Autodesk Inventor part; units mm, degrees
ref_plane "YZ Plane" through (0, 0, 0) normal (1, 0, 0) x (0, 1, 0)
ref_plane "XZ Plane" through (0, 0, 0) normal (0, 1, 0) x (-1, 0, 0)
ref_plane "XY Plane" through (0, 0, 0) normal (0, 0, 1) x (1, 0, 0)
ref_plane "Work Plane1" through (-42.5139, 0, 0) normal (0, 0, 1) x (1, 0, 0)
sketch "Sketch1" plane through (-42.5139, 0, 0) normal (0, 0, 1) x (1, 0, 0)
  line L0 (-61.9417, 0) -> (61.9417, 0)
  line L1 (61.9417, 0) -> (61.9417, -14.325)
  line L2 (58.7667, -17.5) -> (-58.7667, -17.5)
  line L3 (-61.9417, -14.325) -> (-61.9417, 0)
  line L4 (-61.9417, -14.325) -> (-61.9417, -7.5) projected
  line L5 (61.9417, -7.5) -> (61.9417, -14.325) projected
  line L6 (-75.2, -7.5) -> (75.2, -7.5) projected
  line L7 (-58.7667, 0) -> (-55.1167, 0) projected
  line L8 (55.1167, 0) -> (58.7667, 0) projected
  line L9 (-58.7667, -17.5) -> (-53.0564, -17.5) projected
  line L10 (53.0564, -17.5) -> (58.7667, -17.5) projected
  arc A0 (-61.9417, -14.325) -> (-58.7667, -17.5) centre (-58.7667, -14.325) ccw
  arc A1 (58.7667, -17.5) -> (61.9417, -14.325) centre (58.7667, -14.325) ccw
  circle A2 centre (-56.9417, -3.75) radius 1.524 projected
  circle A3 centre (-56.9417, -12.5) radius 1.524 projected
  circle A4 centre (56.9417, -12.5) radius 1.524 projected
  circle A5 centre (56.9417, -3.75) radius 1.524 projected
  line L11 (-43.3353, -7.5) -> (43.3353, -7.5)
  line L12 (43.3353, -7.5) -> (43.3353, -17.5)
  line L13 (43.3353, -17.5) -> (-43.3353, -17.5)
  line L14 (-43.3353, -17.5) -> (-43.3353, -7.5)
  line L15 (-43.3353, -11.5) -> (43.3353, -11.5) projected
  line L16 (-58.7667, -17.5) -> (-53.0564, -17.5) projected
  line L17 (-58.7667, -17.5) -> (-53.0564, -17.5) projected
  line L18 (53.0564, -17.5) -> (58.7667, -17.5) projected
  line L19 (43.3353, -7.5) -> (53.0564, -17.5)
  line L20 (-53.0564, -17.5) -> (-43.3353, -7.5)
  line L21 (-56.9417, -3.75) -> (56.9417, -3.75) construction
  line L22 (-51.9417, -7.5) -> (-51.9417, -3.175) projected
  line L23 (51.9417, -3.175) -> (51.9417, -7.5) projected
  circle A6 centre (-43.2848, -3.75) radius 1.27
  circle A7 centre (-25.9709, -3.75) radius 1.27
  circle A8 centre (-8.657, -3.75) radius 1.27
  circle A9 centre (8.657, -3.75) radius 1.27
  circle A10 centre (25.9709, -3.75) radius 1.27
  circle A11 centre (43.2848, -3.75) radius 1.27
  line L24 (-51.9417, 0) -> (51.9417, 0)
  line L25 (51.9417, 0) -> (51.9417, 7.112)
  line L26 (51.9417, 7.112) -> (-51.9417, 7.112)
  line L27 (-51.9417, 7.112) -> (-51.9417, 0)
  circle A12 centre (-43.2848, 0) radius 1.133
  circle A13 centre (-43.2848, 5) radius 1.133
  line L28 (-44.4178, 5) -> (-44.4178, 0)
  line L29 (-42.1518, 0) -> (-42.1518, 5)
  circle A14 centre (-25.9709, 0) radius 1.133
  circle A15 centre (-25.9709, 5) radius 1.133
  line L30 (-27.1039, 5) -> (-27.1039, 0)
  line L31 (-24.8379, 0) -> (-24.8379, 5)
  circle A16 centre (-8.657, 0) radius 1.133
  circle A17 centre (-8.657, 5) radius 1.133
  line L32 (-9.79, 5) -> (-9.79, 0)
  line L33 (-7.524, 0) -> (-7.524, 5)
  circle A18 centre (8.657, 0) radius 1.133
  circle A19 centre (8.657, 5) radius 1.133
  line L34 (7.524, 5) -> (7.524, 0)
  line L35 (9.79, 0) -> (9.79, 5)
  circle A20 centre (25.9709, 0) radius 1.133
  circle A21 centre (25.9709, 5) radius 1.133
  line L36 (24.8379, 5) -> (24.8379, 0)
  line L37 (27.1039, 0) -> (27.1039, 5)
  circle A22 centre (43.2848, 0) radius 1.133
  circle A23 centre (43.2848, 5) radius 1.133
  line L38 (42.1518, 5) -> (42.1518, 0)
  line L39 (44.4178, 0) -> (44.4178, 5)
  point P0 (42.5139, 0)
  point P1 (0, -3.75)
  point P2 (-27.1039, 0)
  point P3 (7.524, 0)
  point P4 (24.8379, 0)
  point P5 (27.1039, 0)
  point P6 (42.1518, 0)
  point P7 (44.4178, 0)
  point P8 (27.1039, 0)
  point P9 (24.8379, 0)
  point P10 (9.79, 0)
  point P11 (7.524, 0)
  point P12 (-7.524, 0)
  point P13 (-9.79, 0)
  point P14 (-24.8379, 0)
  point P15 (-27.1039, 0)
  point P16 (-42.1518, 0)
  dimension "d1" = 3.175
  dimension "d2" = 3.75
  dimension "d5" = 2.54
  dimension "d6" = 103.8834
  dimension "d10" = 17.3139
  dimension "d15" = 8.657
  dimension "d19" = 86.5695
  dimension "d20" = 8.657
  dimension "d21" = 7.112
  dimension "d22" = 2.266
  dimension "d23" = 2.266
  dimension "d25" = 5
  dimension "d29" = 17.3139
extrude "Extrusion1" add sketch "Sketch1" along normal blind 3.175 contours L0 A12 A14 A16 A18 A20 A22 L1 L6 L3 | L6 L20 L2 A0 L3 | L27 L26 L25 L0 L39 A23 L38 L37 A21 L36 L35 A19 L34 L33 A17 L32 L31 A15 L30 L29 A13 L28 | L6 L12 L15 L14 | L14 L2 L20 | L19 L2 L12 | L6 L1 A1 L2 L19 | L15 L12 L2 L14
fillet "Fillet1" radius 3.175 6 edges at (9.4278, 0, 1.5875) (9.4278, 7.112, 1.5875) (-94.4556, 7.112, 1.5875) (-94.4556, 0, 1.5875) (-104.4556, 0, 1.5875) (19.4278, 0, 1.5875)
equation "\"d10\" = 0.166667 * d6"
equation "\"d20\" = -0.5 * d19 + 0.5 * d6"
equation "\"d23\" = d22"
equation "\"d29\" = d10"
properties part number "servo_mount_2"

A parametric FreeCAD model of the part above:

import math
import FreeCAD as App
import Part
import Sketcher

V = App.Vector
Q = App.Units.Quantity


def edges_at(feature, points):
    """Names of the edges that pass closest to the given points."""
    edges = feature.Shape.Edges
    near = lambda p: min(range(len(edges)), key=lambda i: edges[i].distToShape(Part.Vertex(*p))[0])
    return sorted({f"Edge{near(p) + 1}" for p in points})

doc = App.newDocument("Part")
body = doc.addObject("PartDesign::Body", "Body")

sketch1 = body.newObject("Sketcher::SketchObject", "Sketch")
sketch1.AttachmentSupport = (doc.getObject("XY_Plane"), [""])
sketch1.MapMode = "FlatFace"
sketch1.addGeometry(Part.LineSegment(V(-104.5, 0, 0), V(-104.5, -14.3, 0)), False)
sketch1.addGeometry(Part.ArcOfCircle(Part.Circle(V(-101.3, -14.3, 0), V(0, 0, 1), 3.2), math.radians(180), math.radians(270)), False)
sketch1.addGeometry(Part.LineSegment(V(-101.3, -17.5, 0), V(16.3, -17.5, 0)), False)
sketch1.addGeometry(Part.ArcOfCircle(Part.Circle(V(16.3, -14.3, 0), V(0, 0, 1), 3.2), math.radians(-90), math.radians(0)), False)
sketch1.addGeometry(Part.LineSegment(V(19.4, -14.3, 0), V(19.4, 0, 0)), False)
sketch1.addGeometry(Part.LineSegment(V(19.4, 0, 0), V(9.4, 0, 0)), False)
sketch1.addGeometry(Part.LineSegment(V(9.4, 0, 0), V(9.4, 7.1, 0)), False)
sketch1.addGeometry(Part.LineSegment(V(9.4, 7.1, 0), V(-94.5, 7.1, 0)), False)
sketch1.addGeometry(Part.LineSegment(V(-94.5, 7.1, 0), V(-94.5, 0, 0)), False)
sketch1.addGeometry(Part.LineSegment(V(-94.5, 0, 0), V(-104.5, 0, 0)), False)
sketch1.addGeometry(Part.ArcOfCircle(Part.Circle(V(-85.8, 0, 0), V(0, 0, 1), 1.1), math.radians(180), math.radians(360)), False)
sketch1.addGeometry(Part.LineSegment(V(-86.9, 0, 0), V(-86.9, 5, 0)), False)
sketch1.addGeometry(Part.ArcOfCircle(Part.Circle(V(-85.8, 5, 0), V(0, 0, 1), 1.1), math.radians(0), math.radians(180)), False)
sketch1.addGeometry(Part.LineSegment(V(-84.7, 5, 0), V(-84.7, 0, 0)), False)
sketch1.addGeometry(Part.ArcOfCircle(Part.Circle(V(-68.5, 0, 0), V(0, 0, 1), 1.1), math.radians(180), math.radians(360)), False)
sketch1.addGeometry(Part.LineSegment(V(-69.6, 0, 0), V(-69.6, 5, 0)), False)
sketch1.addGeometry(Part.ArcOfCircle(Part.Circle(V(-68.5, 5, 0), V(0, 0, 1), 1.1), math.radians(0), math.radians(180)), False)
sketch1.addGeometry(Part.LineSegment(V(-67.4, 5, 0), V(-67.4, 0, 0)), False)
sketch1.addGeometry(Part.ArcOfCircle(Part.Circle(V(-51.2, 0, 0), V(0, 0, 1), 1.1), math.radians(180), math.radians(360)), False)
sketch1.addGeometry(Part.LineSegment(V(-52.3, 0, 0), V(-52.3, 5, 0)), False)
sketch1.addGeometry(Part.ArcOfCircle(Part.Circle(V(-51.2, 5, 0), V(0, 0, 1), 1.1), math.radians(0), math.radians(180)), False)
sketch1.addGeometry(Part.LineSegment(V(-50, 5, 0), V(-50, 0, 0)), False)
sketch1.addGeometry(Part.ArcOfCircle(Part.Circle(V(-33.9, 0, 0), V(0, 0, 1), 1.1), math.radians(180), math.radians(360)), False)
sketch1.addGeometry(Part.LineSegment(V(-35, 0, 0), V(-35, 5, 0)), False)
sketch1.addGeometry(Part.ArcOfCircle(Part.Circle(V(-33.9, 5, 0), V(0, 0, 1), 1.1), math.radians(0), math.radians(180)), False)
sketch1.addGeometry(Part.LineSegment(V(-32.7, 5, 0), V(-32.7, 0, 0)), False)
sketch1.addGeometry(Part.ArcOfCircle(Part.Circle(V(-16.5, 0, 0), V(0, 0, 1), 1.1), math.radians(180), math.radians(360)), False)
sketch1.addGeometry(Part.LineSegment(V(-17.7, 0, 0), V(-17.7, 5, 0)), False)
sketch1.addGeometry(Part.ArcOfCircle(Part.Circle(V(-16.5, 5, 0), V(0, 0, 1), 1.1), math.radians(0), math.radians(180)), False)
sketch1.addGeometry(Part.LineSegment(V(-15.4, 5, 0), V(-15.4, 0, 0)), False)
sketch1.addGeometry(Part.ArcOfCircle(Part.Circle(V(0.8, 0, 0), V(0, 0, 1), 1.1), math.radians(180), math.radians(360)), False)
sketch1.addGeometry(Part.LineSegment(V(-0.4, 0, 0), V(-0.4, 5, 0)), False)
sketch1.addGeometry(Part.ArcOfCircle(Part.Circle(V(0.8, 5, 0), V(0, 0, 1), 1.1), math.radians(0), math.radians(180)), False)
sketch1.addGeometry(Part.LineSegment(V(1.9, 5, 0), V(1.9, 0, 0)), False)
sketch1.addGeometry(Part.Circle(V(-99.5, -3.8, 0), V(0, 0, 1), 1.5), False)
sketch1.addGeometry(Part.Circle(V(-85.8, -3.8, 0), V(0, 0, 1), 1.3), False)
sketch1.addGeometry(Part.Circle(V(-68.5, -3.8, 0), V(0, 0, 1), 1.3), False)
sketch1.addGeometry(Part.Circle(V(-51.2, -3.8, 0), V(0, 0, 1), 1.3), False)
sketch1.addGeometry(Part.Circle(V(-33.9, -3.8, 0), V(0, 0, 1), 1.3), False)
sketch1.addGeometry(Part.Circle(V(-16.5, -3.8, 0), V(0, 0, 1), 1.3), False)
sketch1.addGeometry(Part.Circle(V(0.8, -3.8, 0), V(0, 0, 1), 1.3), False)
sketch1.addGeometry(Part.Circle(V(14.4, -3.8, 0), V(0, 0, 1), 1.5), False)
sketch1.addGeometry(Part.Circle(V(14.4, -12.5, 0), V(0, 0, 1), 1.5), False)
sketch1.addGeometry(Part.Circle(V(-99.5, -12.5, 0), V(0, 0, 1), 1.5), False)
sketch1.addConstraint(Sketcher.Constraint("Tangent", 0, 2, 1, 1))
sketch1.addConstraint(Sketcher.Constraint("Tangent", 1, 2, 2, 1))
sketch1.addConstraint(Sketcher.Constraint("Tangent", 2, 2, 3, 1))
sketch1.addConstraint(Sketcher.Constraint("Tangent", 3, 2, 4, 1))
sketch1.addConstraint(Sketcher.Constraint("Coincident", 4, 2, 5, 1))
sketch1.addConstraint(Sketcher.Constraint("Coincident", 5, 2, 6, 1))
sketch1.addConstraint(Sketcher.Constraint("Coincident", 6, 2, 7, 1))
sketch1.addConstraint(Sketcher.Constraint("Coincident", 7, 2, 8, 1))
sketch1.addConstraint(Sketcher.Constraint("Coincident", 8, 2, 9, 1))
sketch1.addConstraint(Sketcher.Constraint("Coincident", 9, 2, 0, 1))
sketch1.addConstraint(Sketcher.Constraint("Tangent", 10, 1, 11, 1))
sketch1.addConstraint(Sketcher.Constraint("Tangent", 11, 2, 12, 2))
sketch1.addConstraint(Sketcher.Constraint("Tangent", 12, 1, 13, 1))
sketch1.addConstraint(Sketcher.Constraint("Tangent", 13, 2, 10, 2))
sketch1.addConstraint(Sketcher.Constraint("Tangent", 14, 1, 15, 1))
sketch1.addConstraint(Sketcher.Constraint("Tangent", 15, 2, 16, 2))
sketch1.addConstraint(Sketcher.Constraint("Tangent", 16, 1, 17, 1))
sketch1.addConstraint(Sketcher.Constraint("Tangent", 17, 2, 14, 2))
sketch1.addConstraint(Sketcher.Constraint("Tangent", 18, 1, 19, 1))
sketch1.addConstraint(Sketcher.Constraint("Tangent", 19, 2, 20, 2))
sketch1.addConstraint(Sketcher.Constraint("Tangent", 20, 1, 21, 1))
sketch1.addConstraint(Sketcher.Constraint("Tangent", 21, 2, 18, 2))
sketch1.addConstraint(Sketcher.Constraint("Tangent", 22, 1, 23, 1))
sketch1.addConstraint(Sketcher.Constraint("Tangent", 23, 2, 24, 2))
sketch1.addConstraint(Sketcher.Constraint("Tangent", 24, 1, 25, 1))
sketch1.addConstraint(Sketcher.Constraint("Tangent", 25, 2, 22, 2))
sketch1.addConstraint(Sketcher.Constraint("Tangent", 26, 1, 27, 1))
sketch1.addConstraint(Sketcher.Constraint("Tangent", 27, 2, 28, 2))
sketch1.addConstraint(Sketcher.Constraint("Tangent", 28, 1, 29, 1))
sketch1.addConstraint(Sketcher.Constraint("Tangent", 29, 2, 26, 2))
sketch1.addConstraint(Sketcher.Constraint("Tangent", 30, 1, 31, 1))
sketch1.addConstraint(Sketcher.Constraint("Tangent", 31, 2, 32, 2))
sketch1.addConstraint(Sketcher.Constraint("Tangent", 32, 1, 33, 1))
sketch1.addConstraint(Sketcher.Constraint("Tangent", 33, 2, 30, 2))
sketch1.addConstraint(Sketcher.Constraint("Vertical", 0))
sketch1.addConstraint(Sketcher.Constraint("Horizontal", 2))
sketch1.addConstraint(Sketcher.Constraint("Vertical", 4))
sketch1.addConstraint(Sketcher.Constraint("Horizontal", 5))
sketch1.addConstraint(Sketcher.Constraint("Vertical", 6))
sketch1.addConstraint(Sketcher.Constraint("Horizontal", 7))
sketch1.addConstraint(Sketcher.Constraint("Vertical", 8))
sketch1.addConstraint(Sketcher.Constraint("Horizontal", 9))
sketch1.addConstraint(Sketcher.Constraint("Vertical", 11))
sketch1.addConstraint(Sketcher.Constraint("Vertical", 13))
sketch1.addConstraint(Sketcher.Constraint("Vertical", 15))
sketch1.addConstraint(Sketcher.Constraint("Vertical", 17))
sketch1.addConstraint(Sketcher.Constraint("Vertical", 19))
sketch1.addConstraint(Sketcher.Constraint("Vertical", 21))
sketch1.addConstraint(Sketcher.Constraint("Vertical", 23))
sketch1.addConstraint(Sketcher.Constraint("Vertical", 25))
sketch1.addConstraint(Sketcher.Constraint("Vertical", 27))
sketch1.addConstraint(Sketcher.Constraint("Vertical", 29))
sketch1.addConstraint(Sketcher.Constraint("Vertical", 31))
sketch1.addConstraint(Sketcher.Constraint("Vertical", 33))
sketch1.addConstraint(Sketcher.Constraint("Equal", 1, 3))
sketch1.addConstraint(Sketcher.Constraint("Equal", 12, 14))
sketch1.addConstraint(Sketcher.Constraint("Equal", 16, 18))
sketch1.addConstraint(Sketcher.Constraint("Equal", 20, 22))
sketch1.addConstraint(Sketcher.Constraint("Equal", 24, 26))
sketch1.addConstraint(Sketcher.Constraint("Equal", 28, 30))
sketch1.addConstraint(Sketcher.Constraint("Equal", 35, 36))
sketch1.addConstraint(Sketcher.Constraint("Equal", 36, 37))
sketch1.addConstraint(Sketcher.Constraint("Equal", 37, 38))
sketch1.addConstraint(Sketcher.Constraint("Equal", 38, 39))
sketch1.addConstraint(Sketcher.Constraint("Equal", 39, 40))
sketch1.addConstraint(Sketcher.Constraint("Equal", 34, 41))
sketch1.addConstraint(Sketcher.Constraint("Equal", 41, 42))
sketch1.addConstraint(Sketcher.Constraint("Equal", 42, 43))
sketch1.addConstraint(Sketcher.Constraint("PointOnObject", 10, 3, -1))
sketch1.addConstraint(Sketcher.Constraint("PointOnObject", 14, 3, -1))
sketch1.addConstraint(Sketcher.Constraint("PointOnObject", 18, 3, -1))
sketch1.addConstraint(Sketcher.Constraint("PointOnObject", 22, 3, -1))
sketch1.addConstraint(Sketcher.Constraint("PointOnObject", 26, 3, -1))
sketch1.addConstraint(Sketcher.Constraint("PointOnObject", 30, 3, -1))
sketch1.addConstraint(Sketcher.Constraint("PointOnObject", 4, 2, -1))
sketch1.addConstraint(Sketcher.Constraint("PointOnObject", 8, 2, -1))
sketch1.addConstraint(Sketcher.Constraint("Horizontal", 12, 3, 16, 3))
sketch1.addConstraint(Sketcher.Constraint("Horizontal", 16, 3, 20, 3))
sketch1.addConstraint(Sketcher.Constraint("Horizontal", 20, 3, 24, 3))
sketch1.addConstraint(Sketcher.Constraint("Horizontal", 24, 3, 28, 3))
sketch1.addConstraint(Sketcher.Constraint("Horizontal", 28, 3, 32, 3))
sketch1.addConstraint(Sketcher.Constraint("Horizontal", 34, 3, 35, 3))
sketch1.addConstraint(Sketcher.Constraint("Horizontal", 35, 3, 36, 3))
sketch1.addConstraint(Sketcher.Constraint("Horizontal", 36, 3, 37, 3))
sketch1.addConstraint(Sketcher.Constraint("Horizontal", 37, 3, 38, 3))
sketch1.addConstraint(Sketcher.Constraint("Horizontal", 38, 3, 39, 3))
sketch1.addConstraint(Sketcher.Constraint("Horizontal", 39, 3, 40, 3))
sketch1.addConstraint(Sketcher.Constraint("Horizontal", 40, 3, 41, 3))
sketch1.addConstraint(Sketcher.Constraint("Horizontal", 42, 3, 43, 3))
sketch1.addConstraint(Sketcher.Constraint("Vertical", 12, 3, 35, 3))
sketch1.addConstraint(Sketcher.Constraint("Vertical", 16, 3, 36, 3))
sketch1.addConstraint(Sketcher.Constraint("Vertical", 20, 3, 37, 3))
sketch1.addConstraint(Sketcher.Constraint("Vertical", 24, 3, 38, 3))
sketch1.addConstraint(Sketcher.Constraint("Vertical", 28, 3, 39, 3))
sketch1.addConstraint(Sketcher.Constraint("Vertical", 32, 3, 40, 3))
sketch1.addConstraint(Sketcher.Constraint("Vertical", 41, 3, 42, 3))
sketch1.addConstraint(Sketcher.Constraint("Vertical", 34, 3, 43, 3))
sketch1.addConstraint(Sketcher.Constraint("Equal", 5, 9))
sketch1.addConstraint(Sketcher.Constraint("Diameter", 35, Q("0.1 in")))
sketch1.addConstraint(Sketcher.Constraint("Radius", 1, Q("0.125 in")))
sketch1.addConstraint(Sketcher.Constraint("DistanceY", 6, 1, 6, 2, Q("0.28 in")))
sketch1.addConstraint(Sketcher.Constraint("Radius", 10, Q("0.0446 in")))
sketch1.addConstraint(Sketcher.Constraint("Diameter", 34, Q("0.12 in")))
sketch1.addConstraint(Sketcher.Constraint("DistanceX", 7, 2, 7, 1, Q("4.0899 in")))
sketch1.addConstraint(Sketcher.Constraint("DistanceY", 11, 1, 11, 2, 5.0))
sketch1.addConstraint(Sketcher.Constraint("DistanceY", 34, 3, -1, 1, 3.75))
sketch1.addConstraint(Sketcher.Constraint("DistanceX", 20, 1, -1, 1, Q("1.97 in")))
sketch1.addConstraint(Sketcher.Constraint("DistanceX", 10, 3, 14, 3, 17.314))
sketch1.addConstraint(Sketcher.Constraint("DistanceX", 14, 3, 18, 3, 17.314))
sketch1.addConstraint(Sketcher.Constraint("DistanceX", 18, 3, 22, 3, 17.314))
sketch1.addConstraint(Sketcher.Constraint("DistanceX", 22, 3, 26, 3, 17.314))
sketch1.addConstraint(Sketcher.Constraint("DistanceX", 26, 3, 30, 3, 17.314))
sketch1.addConstraint(Sketcher.Constraint("DistanceX", 0, 2, 43, 3, 5.0))
sketch1.addConstraint(Sketcher.Constraint("DistanceY", 1, 2, 43, 3, 5.0))
sketch1.addConstraint(Sketcher.Constraint("DistanceX", 42, 3, 3, 2, 5.0))
sketch1.addConstraint(Sketcher.Constraint("DistanceX", 5, 2, 41, 3, 5.0))
sketch1.addConstraint(Sketcher.Constraint("DistanceX", 30, 3, 5, 2, 8.657))
sketch1.addConstraint(Sketcher.Constraint("DistanceY", 0, 2, 0, 1, 14.325))
pad1 = body.newObject("PartDesign::Pad", "Pad")
pad1.Profile = sketch1
pad1.Length = Q("0.125 in")
doc.recompute()

fillet = body.newObject("PartDesign::Fillet", "Fillet")
fillet.Base = (pad1, edges_at(pad1, [
    (9.428, 0, 1.587),
    (9.428, 7.112, 1.587),
    (-94.456, 7.112, 1.587),
    (-94.456, 0, 1.587),
    (-104.456, 0, 1.587),
    (19.428, 0, 1.587),
]))
fillet.Radius = Q("0.125 in")

doc.recompute()
